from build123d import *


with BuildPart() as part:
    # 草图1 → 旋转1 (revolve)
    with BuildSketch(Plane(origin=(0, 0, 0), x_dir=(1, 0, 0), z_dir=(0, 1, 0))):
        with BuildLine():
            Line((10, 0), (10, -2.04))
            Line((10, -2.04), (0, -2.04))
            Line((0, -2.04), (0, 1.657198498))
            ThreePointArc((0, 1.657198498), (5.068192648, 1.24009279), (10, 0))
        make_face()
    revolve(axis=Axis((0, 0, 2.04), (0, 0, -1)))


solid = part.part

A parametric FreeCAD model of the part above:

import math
import FreeCAD as App
import Part
import Sketcher
from FreeCAD import Vector
Q = App.Units.Quantity

doc = App.newDocument("Part")
params = doc.addObject("Spreadsheet::Sheet", "Params")
for row, (alias, value) in enumerate([
    ("sketch1_radius", "31 mm"),
    ("sketch1_width", "10 mm"),
    ("sketch1_height", "2.04 mm"),
    ("revolution_angle", "360 deg"),
], start=1):
    params.set(f"A{row}", alias)
    params.set(f"B{row}", "=" + value)
    params.setAlias(f"B{row}", alias)

body = doc.addObject("PartDesign::Body", "Body")

# Sketch on XZ plane
sketch1 = doc.addObject("Sketcher::SketchObject", "Sketch")
body.addObject(sketch1)
sketch1.AttachmentSupport = (doc.XZ_Plane, [""])
sketch1.MapMode = "FlatFace"
sketch1.addGeometry([
    Part.LineSegment(Vector(10, 2, 0), Vector(10, 0, 0)),
    Part.ArcOfCircle(Part.Circle(Vector(0, 29.3, 0), Vector(0, 0, 1), 31), math.radians(-90), math.radians(-71.18)),
    Part.LineSegment(Vector(0, -1.7, 0), Vector(0, 2, 0)),
    Part.LineSegment(Vector(0, 2, 0), Vector(10, 2, 0)),
], False)
sketch1.addConstraint([
    Sketcher.Constraint("Coincident", 0, 2, 1, 2),
    Sketcher.Constraint("Coincident", 1, 1, 2, 1),
    Sketcher.Constraint("Coincident", 2, 2, 3, 1),
    Sketcher.Constraint("Coincident", 3, 2, 0, 1),
    Sketcher.Constraint("Vertical", 0),
    Sketcher.Constraint("Vertical", 2),
    Sketcher.Constraint("Horizontal", 3),
    Sketcher.Constraint("PointOnObject", 1, 3, -2),
    Sketcher.Constraint("PointOnObject", 0, 2, -1),
    Sketcher.Constraint("PointOnObject", 1, 1, -2),
    Sketcher.Constraint("Radius", 1, Q("31 mm")),
    Sketcher.Constraint("DistanceX", 3, 1, 3, 2, Q("10 mm")),
    Sketcher.Constraint("DistanceY", 0, 2, 0, 1, Q("2.04 mm")),
])
sketch1.setExpression("Constraints[10]", "Params.sketch1_radius")
sketch1.setExpression("Constraints[11]", "Params.sketch1_width")
sketch1.setExpression("Constraints[12]", "Params.sketch1_height")
revolution = doc.addObject("PartDesign::Revolution", "Revolution")
body.addObject(revolution)
revolution.Profile = sketch1
revolution.ReferenceAxis = (sketch1, ["V_Axis"])
revolution.setExpression("Angle", "Params.revolution_angle")

doc.recompute()
